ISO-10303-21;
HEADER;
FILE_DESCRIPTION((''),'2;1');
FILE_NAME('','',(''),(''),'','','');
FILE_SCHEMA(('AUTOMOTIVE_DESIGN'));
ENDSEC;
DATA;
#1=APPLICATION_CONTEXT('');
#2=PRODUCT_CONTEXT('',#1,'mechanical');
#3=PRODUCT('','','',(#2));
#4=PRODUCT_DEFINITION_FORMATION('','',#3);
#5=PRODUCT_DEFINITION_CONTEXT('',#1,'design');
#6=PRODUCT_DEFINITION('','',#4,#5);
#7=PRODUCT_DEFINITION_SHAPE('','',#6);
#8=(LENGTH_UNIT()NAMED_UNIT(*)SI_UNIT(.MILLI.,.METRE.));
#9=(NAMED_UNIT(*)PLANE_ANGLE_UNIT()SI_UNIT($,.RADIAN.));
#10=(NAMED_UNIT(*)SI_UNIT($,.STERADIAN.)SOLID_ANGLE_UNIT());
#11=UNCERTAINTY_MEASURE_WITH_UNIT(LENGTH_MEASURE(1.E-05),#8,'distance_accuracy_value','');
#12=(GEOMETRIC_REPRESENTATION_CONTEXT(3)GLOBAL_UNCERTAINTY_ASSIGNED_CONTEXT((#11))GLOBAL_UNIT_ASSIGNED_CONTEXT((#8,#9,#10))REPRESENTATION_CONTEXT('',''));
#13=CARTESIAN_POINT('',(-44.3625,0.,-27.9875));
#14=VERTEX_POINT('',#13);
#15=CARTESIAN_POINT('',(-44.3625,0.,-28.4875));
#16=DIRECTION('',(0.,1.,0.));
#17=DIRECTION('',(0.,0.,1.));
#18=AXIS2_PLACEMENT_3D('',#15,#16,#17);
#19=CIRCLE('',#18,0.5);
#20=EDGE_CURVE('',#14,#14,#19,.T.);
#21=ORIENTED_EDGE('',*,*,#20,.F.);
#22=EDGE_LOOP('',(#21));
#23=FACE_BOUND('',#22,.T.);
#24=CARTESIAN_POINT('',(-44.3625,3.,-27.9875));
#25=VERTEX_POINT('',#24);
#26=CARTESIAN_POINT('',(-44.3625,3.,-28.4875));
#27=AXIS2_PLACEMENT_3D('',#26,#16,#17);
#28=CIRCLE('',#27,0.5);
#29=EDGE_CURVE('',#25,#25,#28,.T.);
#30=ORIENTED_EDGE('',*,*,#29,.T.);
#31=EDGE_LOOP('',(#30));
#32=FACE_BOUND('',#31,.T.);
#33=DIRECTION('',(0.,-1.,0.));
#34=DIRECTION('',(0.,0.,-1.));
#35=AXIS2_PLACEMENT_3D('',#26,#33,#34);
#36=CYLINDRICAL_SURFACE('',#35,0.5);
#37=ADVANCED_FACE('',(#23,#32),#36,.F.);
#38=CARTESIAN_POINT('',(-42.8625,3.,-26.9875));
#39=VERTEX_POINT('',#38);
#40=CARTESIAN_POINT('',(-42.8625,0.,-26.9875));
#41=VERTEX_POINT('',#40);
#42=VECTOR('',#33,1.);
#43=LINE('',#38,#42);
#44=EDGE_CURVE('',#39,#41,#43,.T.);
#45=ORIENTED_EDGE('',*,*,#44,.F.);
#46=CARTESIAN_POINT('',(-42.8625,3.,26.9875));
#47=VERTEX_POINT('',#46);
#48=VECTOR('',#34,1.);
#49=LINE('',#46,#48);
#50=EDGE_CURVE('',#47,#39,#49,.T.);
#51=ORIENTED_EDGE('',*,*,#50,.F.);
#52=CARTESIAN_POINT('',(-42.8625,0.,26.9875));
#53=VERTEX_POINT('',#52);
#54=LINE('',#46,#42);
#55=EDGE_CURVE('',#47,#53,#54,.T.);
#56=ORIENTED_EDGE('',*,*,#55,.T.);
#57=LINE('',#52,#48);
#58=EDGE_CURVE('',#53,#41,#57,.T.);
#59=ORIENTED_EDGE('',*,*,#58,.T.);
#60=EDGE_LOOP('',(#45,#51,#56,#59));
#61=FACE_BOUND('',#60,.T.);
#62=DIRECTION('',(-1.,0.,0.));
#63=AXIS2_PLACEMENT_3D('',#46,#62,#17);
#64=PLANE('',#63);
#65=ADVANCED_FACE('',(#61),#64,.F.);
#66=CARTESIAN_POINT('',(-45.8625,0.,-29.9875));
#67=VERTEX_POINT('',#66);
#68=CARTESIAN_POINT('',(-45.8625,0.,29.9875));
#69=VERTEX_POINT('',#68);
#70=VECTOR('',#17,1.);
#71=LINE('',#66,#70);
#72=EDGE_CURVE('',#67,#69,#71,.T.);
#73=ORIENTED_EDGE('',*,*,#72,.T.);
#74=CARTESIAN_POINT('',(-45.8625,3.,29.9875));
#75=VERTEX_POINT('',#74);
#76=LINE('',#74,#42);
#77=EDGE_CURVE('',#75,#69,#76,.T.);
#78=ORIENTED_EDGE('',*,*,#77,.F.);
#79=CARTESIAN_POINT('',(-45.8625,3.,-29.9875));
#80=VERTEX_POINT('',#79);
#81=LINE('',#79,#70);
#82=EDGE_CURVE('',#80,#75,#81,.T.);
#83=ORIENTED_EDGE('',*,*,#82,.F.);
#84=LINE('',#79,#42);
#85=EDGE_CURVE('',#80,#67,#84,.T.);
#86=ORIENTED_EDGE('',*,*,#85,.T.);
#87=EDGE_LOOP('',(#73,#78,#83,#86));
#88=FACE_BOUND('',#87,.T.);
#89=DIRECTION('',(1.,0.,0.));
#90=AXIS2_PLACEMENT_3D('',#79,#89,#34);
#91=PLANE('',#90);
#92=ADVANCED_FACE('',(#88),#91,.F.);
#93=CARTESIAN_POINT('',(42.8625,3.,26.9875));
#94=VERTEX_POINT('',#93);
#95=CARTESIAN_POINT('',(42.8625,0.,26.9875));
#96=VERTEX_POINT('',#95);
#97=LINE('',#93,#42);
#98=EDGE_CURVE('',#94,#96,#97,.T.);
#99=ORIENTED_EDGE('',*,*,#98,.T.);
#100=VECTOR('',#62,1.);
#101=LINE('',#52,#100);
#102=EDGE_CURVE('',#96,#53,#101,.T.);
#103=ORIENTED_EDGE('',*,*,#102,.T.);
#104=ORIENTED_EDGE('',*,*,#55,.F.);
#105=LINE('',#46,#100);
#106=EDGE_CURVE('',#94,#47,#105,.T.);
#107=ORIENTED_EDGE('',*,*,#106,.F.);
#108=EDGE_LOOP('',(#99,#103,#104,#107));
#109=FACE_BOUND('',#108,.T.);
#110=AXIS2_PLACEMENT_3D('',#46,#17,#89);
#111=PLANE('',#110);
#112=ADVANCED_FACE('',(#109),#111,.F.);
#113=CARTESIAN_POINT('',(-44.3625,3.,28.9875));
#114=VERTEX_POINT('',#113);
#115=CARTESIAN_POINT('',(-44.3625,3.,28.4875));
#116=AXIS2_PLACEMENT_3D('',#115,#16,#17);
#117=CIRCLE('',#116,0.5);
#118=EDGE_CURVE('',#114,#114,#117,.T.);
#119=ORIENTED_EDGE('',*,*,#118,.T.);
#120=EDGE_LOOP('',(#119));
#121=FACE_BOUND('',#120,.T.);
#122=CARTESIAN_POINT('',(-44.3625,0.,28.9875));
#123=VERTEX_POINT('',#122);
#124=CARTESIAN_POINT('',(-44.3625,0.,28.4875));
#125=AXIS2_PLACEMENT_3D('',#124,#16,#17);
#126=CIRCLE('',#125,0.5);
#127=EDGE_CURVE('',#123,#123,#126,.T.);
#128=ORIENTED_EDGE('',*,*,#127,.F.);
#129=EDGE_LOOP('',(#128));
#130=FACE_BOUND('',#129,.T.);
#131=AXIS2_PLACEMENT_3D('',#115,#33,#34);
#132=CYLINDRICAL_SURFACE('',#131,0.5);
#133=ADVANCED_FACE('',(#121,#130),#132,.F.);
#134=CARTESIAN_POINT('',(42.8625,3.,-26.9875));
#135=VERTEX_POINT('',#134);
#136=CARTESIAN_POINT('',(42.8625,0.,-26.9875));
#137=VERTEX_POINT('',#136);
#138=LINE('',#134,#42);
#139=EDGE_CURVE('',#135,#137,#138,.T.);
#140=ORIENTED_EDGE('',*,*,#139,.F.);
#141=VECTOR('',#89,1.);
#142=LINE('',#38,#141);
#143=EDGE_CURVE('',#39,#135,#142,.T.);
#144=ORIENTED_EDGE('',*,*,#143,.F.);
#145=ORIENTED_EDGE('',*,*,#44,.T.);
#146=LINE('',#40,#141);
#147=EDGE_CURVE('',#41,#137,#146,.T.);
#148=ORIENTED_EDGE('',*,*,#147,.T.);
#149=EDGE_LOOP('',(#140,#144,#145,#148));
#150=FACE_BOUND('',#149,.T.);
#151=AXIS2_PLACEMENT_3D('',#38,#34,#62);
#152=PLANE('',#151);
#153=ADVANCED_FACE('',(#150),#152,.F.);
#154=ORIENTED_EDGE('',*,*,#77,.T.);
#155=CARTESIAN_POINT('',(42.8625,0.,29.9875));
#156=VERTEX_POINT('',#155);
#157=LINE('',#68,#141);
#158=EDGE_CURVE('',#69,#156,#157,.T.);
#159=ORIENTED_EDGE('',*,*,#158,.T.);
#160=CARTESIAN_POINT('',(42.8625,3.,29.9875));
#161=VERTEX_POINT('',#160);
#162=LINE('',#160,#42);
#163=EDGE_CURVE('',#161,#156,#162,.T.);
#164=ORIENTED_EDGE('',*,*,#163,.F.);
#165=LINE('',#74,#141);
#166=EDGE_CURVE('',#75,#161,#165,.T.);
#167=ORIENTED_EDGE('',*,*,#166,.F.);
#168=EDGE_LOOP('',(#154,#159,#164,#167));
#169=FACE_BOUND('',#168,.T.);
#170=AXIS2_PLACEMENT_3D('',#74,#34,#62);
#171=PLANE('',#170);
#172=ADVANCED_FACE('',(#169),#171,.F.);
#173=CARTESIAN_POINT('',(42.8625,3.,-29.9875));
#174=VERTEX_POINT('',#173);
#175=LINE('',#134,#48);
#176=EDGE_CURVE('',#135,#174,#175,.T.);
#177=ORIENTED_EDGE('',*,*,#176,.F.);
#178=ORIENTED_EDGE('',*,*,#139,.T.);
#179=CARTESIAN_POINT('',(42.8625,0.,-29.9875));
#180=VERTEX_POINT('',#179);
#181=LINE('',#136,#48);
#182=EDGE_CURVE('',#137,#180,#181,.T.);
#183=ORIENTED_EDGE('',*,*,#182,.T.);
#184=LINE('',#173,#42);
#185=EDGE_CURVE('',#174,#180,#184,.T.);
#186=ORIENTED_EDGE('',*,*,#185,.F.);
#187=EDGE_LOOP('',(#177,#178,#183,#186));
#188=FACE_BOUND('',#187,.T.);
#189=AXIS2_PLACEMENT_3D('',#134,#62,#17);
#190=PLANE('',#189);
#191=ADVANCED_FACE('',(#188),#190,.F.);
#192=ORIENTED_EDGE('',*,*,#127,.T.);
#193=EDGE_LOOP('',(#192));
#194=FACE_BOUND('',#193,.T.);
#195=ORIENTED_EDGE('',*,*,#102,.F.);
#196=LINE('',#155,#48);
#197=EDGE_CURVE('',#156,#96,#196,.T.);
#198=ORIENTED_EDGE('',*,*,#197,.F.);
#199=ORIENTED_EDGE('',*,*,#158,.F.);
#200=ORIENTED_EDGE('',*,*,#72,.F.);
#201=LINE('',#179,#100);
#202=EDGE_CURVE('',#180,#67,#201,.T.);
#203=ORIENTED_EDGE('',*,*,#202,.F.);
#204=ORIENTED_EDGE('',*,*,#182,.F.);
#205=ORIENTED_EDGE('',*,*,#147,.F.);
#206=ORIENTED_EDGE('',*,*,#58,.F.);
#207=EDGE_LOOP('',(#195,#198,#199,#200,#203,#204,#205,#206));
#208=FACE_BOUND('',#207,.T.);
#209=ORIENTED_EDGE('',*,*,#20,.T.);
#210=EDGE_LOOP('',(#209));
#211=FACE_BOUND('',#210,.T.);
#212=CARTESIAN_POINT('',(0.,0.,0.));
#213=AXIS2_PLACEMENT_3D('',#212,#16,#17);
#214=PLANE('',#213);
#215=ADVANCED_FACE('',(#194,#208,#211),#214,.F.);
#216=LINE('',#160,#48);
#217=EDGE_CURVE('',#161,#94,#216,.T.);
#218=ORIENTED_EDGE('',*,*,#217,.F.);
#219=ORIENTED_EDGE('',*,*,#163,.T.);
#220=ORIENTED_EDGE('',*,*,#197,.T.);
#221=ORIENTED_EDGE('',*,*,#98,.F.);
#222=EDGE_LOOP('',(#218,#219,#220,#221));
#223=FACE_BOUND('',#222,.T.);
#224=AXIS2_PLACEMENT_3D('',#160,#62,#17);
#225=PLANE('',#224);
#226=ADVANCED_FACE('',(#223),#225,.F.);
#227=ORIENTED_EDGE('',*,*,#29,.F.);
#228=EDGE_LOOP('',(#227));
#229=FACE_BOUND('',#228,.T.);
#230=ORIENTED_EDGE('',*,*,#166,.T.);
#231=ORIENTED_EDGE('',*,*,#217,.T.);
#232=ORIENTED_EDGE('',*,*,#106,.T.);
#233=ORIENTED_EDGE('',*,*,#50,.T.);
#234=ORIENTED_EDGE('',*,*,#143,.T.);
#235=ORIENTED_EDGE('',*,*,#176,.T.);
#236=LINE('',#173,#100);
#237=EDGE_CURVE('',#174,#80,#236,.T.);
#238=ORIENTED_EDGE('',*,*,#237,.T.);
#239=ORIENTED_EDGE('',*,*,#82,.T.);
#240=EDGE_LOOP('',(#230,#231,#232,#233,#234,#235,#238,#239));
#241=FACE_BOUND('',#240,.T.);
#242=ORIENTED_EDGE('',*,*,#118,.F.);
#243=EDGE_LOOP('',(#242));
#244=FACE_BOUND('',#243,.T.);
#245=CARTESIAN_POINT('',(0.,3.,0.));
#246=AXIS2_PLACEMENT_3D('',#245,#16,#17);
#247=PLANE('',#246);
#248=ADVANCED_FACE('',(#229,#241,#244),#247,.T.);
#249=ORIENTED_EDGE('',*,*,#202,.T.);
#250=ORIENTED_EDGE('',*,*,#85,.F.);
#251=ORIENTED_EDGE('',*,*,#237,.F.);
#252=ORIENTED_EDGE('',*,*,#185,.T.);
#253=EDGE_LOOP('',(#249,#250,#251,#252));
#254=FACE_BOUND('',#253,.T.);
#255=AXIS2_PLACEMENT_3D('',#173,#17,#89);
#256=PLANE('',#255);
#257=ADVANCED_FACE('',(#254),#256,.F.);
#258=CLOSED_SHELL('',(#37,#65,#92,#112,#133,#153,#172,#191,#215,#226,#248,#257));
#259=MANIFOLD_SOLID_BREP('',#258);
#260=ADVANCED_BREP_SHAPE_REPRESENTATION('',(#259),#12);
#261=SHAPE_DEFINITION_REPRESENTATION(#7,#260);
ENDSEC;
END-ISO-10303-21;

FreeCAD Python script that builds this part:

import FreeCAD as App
import Part
import Sketcher

V = App.Vector

doc = App.newDocument("Part")
body = doc.addObject("PartDesign::Body", "Body")

# Sketch on XZ plane
sketch1 = body.newObject("Sketcher::SketchObject", "Sketch")
sketch1.AttachmentSupport = (doc.getObject("XZ_Plane"), [""])
sketch1.MapMode = "FlatFace"
sketch1.addGeometry(Part.LineSegment(V(42.8625, -26.9875, 0), V(42.8625, -29.9875, 0)), False)
sketch1.addGeometry(Part.LineSegment(V(42.8625, -29.9875, 0), V(-45.8625, -29.9875, 0)), False)
sketch1.addGeometry(Part.LineSegment(V(-45.8625, -29.9875, 0), V(-45.8625, 29.9875, 0)), False)
sketch1.addGeometry(Part.LineSegment(V(-45.8625, 29.9875, 0), V(42.8625, 29.9875, 0)), False)
sketch1.addGeometry(Part.LineSegment(V(42.8625, 29.9875, 0), V(42.8625, 26.9875, 0)), False)
sketch1.addGeometry(Part.LineSegment(V(42.8625, 26.9875, 0), V(-42.8625, 26.9875, 0)), False)
sketch1.addGeometry(Part.LineSegment(V(-42.8625, 26.9875, 0), V(-42.8625, -26.9875, 0)), False)
sketch1.addGeometry(Part.LineSegment(V(-42.8625, -26.9875, 0), V(42.8625, -26.9875, 0)), False)
sketch1.addGeometry(Part.Circle(V(-44.3625, 28.4875, 0), V(0, 0, 1), 0.5), False)
sketch1.addGeometry(Part.Circle(V(-44.3625, -28.4875, 0), V(0, 0, 1), 0.5), False)
sketch1.addConstraint(Sketcher.Constraint("Coincident", 0, 2, 1, 1))
sketch1.addConstraint(Sketcher.Constraint("Coincident", 1, 2, 2, 1))
sketch1.addConstraint(Sketcher.Constraint("Coincident", 2, 2, 3, 1))
sketch1.addConstraint(Sketcher.Constraint("Coincident", 3, 2, 4, 1))
sketch1.addConstraint(Sketcher.Constraint("Coincident", 4, 2, 5, 1))
sketch1.addConstraint(Sketcher.Constraint("Coincident", 5, 2, 6, 1))
sketch1.addConstraint(Sketcher.Constraint("Coincident", 6, 2, 7, 1))
sketch1.addConstraint(Sketcher.Constraint("Coincident", 7, 2, 0, 1))
sketch1.addConstraint(Sketcher.Constraint("Vertical", 0))
sketch1.addConstraint(Sketcher.Constraint("Horizontal", 1))
sketch1.addConstraint(Sketcher.Constraint("Vertical", 2))
sketch1.addConstraint(Sketcher.Constraint("Horizontal", 3))
sketch1.addConstraint(Sketcher.Constraint("Vertical", 4))
sketch1.addConstraint(Sketcher.Constraint("Horizontal", 5))
sketch1.addConstraint(Sketcher.Constraint("Vertical", 6))
sketch1.addConstraint(Sketcher.Constraint("Horizontal", 7))
sketch1.addConstraint(Sketcher.Constraint("Equal", 8, 9))
sketch1.addConstraint(Sketcher.Constraint("Symmetric", 4, 2, 6, 2, -1, 1))
sketch1.addConstraint(Sketcher.Constraint("Symmetric", 8, 3, 9, 3, -1))
sketch1.addConstraint(Sketcher.Constraint("Symmetric", 0, 2, 3, 2, -1))
sketch1.addConstraint(Sketcher.Constraint("Diameter", 8, 1.0))
sketch1.addConstraint(Sketcher.Constraint("DistanceY", 0, 2, 0, 1, 3.0))
sketch1.addConstraint(Sketcher.Constraint("DistanceX", 2, 2, 5, 2, 3.0))
sketch1.addConstraint(Sketcher.Constraint("DistanceY", 0, 2, 9, 3, 1.5))
sketch1.addConstraint(Sketcher.Constraint("DistanceX", 1, 2, 9, 3, 1.5))
sketch1.addConstraint(Sketcher.Constraint("DistanceX", 1, 2, 1, 1, 88.725))
sketch1.addConstraint(Sketcher.Constraint("DistanceY", 2, 1, 2, 2, 59.975))
pad1 = body.newObject("PartDesign::Pad", "Pad")
pad1.Profile = sketch1
pad1.Length = 3
pad1.Reversed = True

doc.recompute()
